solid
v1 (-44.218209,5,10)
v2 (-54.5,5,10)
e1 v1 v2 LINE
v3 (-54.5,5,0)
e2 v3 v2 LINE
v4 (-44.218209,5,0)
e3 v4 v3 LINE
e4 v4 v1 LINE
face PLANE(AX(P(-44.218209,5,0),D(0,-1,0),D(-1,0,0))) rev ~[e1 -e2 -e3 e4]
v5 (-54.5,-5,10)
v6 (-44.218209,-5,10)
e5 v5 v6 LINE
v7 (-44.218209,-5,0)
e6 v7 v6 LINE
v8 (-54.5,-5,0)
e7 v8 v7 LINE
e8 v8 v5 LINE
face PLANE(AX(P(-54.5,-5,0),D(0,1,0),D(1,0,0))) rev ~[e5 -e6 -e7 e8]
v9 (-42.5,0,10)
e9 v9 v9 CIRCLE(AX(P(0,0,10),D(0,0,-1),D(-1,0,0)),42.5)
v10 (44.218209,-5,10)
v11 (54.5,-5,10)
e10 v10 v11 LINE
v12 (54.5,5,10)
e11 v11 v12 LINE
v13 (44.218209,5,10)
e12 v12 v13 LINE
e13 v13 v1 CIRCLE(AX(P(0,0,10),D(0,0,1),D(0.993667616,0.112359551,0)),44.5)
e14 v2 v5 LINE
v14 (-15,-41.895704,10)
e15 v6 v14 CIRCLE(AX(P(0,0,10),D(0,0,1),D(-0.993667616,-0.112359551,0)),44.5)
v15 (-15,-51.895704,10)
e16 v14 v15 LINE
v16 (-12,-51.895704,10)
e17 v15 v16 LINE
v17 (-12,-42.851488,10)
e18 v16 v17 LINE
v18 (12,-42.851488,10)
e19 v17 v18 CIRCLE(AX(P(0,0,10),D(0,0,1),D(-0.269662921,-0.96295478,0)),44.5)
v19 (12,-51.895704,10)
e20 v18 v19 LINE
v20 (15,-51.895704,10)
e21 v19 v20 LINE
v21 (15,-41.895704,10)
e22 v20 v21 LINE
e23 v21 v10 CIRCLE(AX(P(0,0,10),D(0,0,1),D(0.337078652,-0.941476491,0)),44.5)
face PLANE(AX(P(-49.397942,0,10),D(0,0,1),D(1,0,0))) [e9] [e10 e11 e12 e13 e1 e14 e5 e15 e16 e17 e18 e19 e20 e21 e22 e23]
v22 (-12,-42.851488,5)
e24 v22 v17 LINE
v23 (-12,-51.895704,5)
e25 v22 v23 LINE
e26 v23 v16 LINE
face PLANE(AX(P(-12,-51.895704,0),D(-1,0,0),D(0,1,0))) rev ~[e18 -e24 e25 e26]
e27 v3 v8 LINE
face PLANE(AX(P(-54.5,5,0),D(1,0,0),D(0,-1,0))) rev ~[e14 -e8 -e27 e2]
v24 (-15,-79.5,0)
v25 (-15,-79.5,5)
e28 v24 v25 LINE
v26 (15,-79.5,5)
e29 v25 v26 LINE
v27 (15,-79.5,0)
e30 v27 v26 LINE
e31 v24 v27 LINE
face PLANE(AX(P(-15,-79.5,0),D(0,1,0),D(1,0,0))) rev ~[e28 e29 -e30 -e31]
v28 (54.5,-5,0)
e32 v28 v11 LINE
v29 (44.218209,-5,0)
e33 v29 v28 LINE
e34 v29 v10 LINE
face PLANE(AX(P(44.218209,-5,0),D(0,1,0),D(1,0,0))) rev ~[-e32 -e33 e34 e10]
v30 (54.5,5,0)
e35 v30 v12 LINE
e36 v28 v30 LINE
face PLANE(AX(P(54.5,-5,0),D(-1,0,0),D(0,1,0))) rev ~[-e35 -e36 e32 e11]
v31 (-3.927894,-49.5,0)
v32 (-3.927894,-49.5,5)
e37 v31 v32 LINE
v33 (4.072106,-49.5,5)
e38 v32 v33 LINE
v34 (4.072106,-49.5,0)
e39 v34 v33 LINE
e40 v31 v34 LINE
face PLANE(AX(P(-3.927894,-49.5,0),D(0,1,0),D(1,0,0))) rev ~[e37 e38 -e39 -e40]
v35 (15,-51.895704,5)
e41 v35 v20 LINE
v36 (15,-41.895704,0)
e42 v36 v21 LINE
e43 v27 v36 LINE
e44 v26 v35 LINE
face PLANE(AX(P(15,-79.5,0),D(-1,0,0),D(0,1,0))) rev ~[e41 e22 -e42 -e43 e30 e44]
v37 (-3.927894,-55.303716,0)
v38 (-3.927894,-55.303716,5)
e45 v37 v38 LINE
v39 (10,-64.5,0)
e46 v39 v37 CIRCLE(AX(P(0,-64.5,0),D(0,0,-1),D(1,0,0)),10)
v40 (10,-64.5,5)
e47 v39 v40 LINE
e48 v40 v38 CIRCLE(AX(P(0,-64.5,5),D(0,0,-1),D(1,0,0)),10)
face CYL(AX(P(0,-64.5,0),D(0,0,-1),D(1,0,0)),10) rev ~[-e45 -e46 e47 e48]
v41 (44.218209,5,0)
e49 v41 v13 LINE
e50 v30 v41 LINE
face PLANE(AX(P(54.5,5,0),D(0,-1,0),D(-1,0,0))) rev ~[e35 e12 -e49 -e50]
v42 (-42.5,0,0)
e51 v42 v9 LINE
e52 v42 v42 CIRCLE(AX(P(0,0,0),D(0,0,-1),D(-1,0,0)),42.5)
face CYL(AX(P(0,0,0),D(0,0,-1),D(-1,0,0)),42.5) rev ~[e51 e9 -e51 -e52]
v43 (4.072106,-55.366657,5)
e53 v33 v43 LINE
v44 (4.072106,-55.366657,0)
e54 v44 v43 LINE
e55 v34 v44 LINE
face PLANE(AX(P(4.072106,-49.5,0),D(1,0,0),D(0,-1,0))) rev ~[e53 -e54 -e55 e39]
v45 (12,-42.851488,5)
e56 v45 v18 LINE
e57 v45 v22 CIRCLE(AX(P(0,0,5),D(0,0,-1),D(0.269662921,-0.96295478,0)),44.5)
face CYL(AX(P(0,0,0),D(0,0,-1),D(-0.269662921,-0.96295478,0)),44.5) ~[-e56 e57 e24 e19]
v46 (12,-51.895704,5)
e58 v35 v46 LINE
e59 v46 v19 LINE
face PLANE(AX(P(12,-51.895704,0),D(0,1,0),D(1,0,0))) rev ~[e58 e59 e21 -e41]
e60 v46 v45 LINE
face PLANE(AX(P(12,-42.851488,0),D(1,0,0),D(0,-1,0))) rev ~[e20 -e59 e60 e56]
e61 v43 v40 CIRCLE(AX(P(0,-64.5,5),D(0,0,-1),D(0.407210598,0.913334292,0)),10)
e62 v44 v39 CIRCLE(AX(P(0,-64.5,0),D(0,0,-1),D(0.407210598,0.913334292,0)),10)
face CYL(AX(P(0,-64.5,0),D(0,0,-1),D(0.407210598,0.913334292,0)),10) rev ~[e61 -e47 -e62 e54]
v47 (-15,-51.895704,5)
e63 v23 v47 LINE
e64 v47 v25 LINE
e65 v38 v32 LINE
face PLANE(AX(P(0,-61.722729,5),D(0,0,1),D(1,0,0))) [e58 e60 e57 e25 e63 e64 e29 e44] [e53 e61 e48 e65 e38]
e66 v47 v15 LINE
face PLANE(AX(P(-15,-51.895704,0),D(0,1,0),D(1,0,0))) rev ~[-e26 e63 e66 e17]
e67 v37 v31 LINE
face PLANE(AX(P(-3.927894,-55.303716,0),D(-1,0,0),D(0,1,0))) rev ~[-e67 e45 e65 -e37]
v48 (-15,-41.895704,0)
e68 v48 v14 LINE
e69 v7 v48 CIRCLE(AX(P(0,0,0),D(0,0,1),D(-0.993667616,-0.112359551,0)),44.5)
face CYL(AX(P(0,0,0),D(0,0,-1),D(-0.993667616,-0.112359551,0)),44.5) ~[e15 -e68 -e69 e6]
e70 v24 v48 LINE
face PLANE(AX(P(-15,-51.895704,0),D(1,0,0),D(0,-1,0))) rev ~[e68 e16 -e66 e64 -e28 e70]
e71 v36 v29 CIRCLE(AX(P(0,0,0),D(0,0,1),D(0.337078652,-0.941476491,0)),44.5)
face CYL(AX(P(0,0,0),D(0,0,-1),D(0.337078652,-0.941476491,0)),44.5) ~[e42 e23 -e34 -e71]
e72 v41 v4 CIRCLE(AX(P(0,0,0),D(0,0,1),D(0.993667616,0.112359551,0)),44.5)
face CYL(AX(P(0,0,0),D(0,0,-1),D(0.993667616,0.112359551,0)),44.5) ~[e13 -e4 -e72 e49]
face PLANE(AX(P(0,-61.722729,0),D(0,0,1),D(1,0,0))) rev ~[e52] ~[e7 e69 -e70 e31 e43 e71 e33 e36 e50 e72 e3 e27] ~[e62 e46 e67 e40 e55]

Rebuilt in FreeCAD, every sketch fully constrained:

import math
import FreeCAD as App
import Part
import Sketcher
Q = App.Units.Quantity

doc = App.newDocument("Part")
params = doc.addObject("Spreadsheet::Sheet", "Params")
for row, (alias, value) in enumerate([
    ("sketch1_diameter", "85 mm"),
    ("sketch1_radius", "44.5 mm"),
    ("sketch1_width", "3 mm"),
    ("sketch1_height", "10 mm"),
    ("pad1_length", "10 mm"),
    ("sketch2_radius", "10 mm"),
    ("sketch2_radius2", "44.5 mm"),
    ("sketch2_width", "3 mm"),
    ("sketch2_width2", "30 mm"),
    ("sketch2_width3", "8 mm"),
    ("pad2_length", "5 mm"),
], start=1):
    params.set(f"A{row}", alias)
    params.set(f"B{row}", "=" + value)
    params.setAlias(f"B{row}", alias)

body = doc.addObject("PartDesign::Body", "Body")

# Sketch on XY plane
sketch1 = doc.addObject("Sketcher::SketchObject", "Sketch")
body.addObject(sketch1)
sketch1.AttachmentSupport = (doc.XY_Plane, [""])
sketch1.MapMode = "FlatFace"
sketch1.addGeometry(Part.LineSegment(App.Vector(-44.218209, 5, 0), App.Vector(-54.5, 5, 0)), False)
sketch1.addGeometry(Part.LineSegment(App.Vector(-54.5, 5, 0), App.Vector(-54.5, -5, 0)), False)
sketch1.addGeometry(Part.LineSegment(App.Vector(-54.5, -5, 0), App.Vector(-44.218209, -5, 0)), False)
sketch1.addGeometry(Part.ArcOfCircle(Part.Circle(App.Vector(0, 0, 0), App.Vector(0, 0, 1), 44.5), math.radians(-173.548649), math.radians(-109.698989)), False)
sketch1.addGeometry(Part.LineSegment(App.Vector(-15, -41.895704, 0), App.Vector(-15, -51.895704, 0)), False)
sketch1.addGeometry(Part.LineSegment(App.Vector(-15, -51.895704, 0), App.Vector(-12, -51.895704, 0)), False)
sketch1.addGeometry(Part.LineSegment(App.Vector(-12, -51.895704, 0), App.Vector(-12, -42.851488, 0)), False)
sketch1.addGeometry(Part.ArcOfCircle(Part.Circle(App.Vector(0, 0, 0), App.Vector(0, 0, 1), 44.5), math.radians(-105.64421), math.radians(-74.35579)), False)
sketch1.addGeometry(Part.LineSegment(App.Vector(12, -42.851488, 0), App.Vector(12, -51.895704, 0)), False)
sketch1.addGeometry(Part.LineSegment(App.Vector(12, -51.895704, 0), App.Vector(15, -51.895704, 0)), False)
sketch1.addGeometry(Part.LineSegment(App.Vector(15, -51.895704, 0), App.Vector(15, -41.895704, 0)), False)
sketch1.addGeometry(Part.ArcOfCircle(Part.Circle(App.Vector(0, 0, 0), App.Vector(0, 0, 1), 44.5), math.radians(-70.301011), math.radians(-6.451351)), False)
sketch1.addGeometry(Part.LineSegment(App.Vector(44.218209, -5, 0), App.Vector(54.5, -5, 0)), False)
sketch1.addGeometry(Part.LineSegment(App.Vector(54.5, -5, 0), App.Vector(54.5, 5, 0)), False)
sketch1.addGeometry(Part.LineSegment(App.Vector(54.5, 5, 0), App.Vector(44.218209, 5, 0)), False)
sketch1.addGeometry(Part.ArcOfCircle(Part.Circle(App.Vector(0, 0, 0), App.Vector(0, 0, 1), 44.5), math.radians(6.451351), math.radians(173.548649)), False)
sketch1.addGeometry(Part.Circle(App.Vector(0, 0, 0), App.Vector(0, 0, 1), 42.5), False)
sketch1.addConstraint(Sketcher.Constraint("Coincident", 0, 2, 1, 1))
sketch1.addConstraint(Sketcher.Constraint("Coincident", 1, 2, 2, 1))
sketch1.addConstraint(Sketcher.Constraint("Coincident", 2, 2, 3, 1))
sketch1.addConstraint(Sketcher.Constraint("Coincident", 3, 2, 4, 1))
sketch1.addConstraint(Sketcher.Constraint("Coincident", 4, 2, 5, 1))
sketch1.addConstraint(Sketcher.Constraint("Coincident", 5, 2, 6, 1))
sketch1.addConstraint(Sketcher.Constraint("Coincident", 6, 2, 7, 1))
sketch1.addConstraint(Sketcher.Constraint("Coincident", 7, 2, 8, 1))
sketch1.addConstraint(Sketcher.Constraint("Coincident", 8, 2, 9, 1))
sketch1.addConstraint(Sketcher.Constraint("Coincident", 9, 2, 10, 1))
sketch1.addConstraint(Sketcher.Constraint("Coincident", 10, 2, 11, 1))
sketch1.addConstraint(Sketcher.Constraint("Coincident", 11, 2, 12, 1))
sketch1.addConstraint(Sketcher.Constraint("Coincident", 12, 2, 13, 1))
sketch1.addConstraint(Sketcher.Constraint("Coincident", 13, 2, 14, 1))
sketch1.addConstraint(Sketcher.Constraint("Coincident", 14, 2, 15, 1))
sketch1.addConstraint(Sketcher.Constraint("Coincident", 15, 2, 0, 1))
sketch1.addConstraint(Sketcher.Constraint("Horizontal", 0))
sketch1.addConstraint(Sketcher.Constraint("Vertical", 1))
sketch1.addConstraint(Sketcher.Constraint("Horizontal", 2))
sketch1.addConstraint(Sketcher.Constraint("Vertical", 4))
sketch1.addConstraint(Sketcher.Constraint("Horizontal", 5))
sketch1.addConstraint(Sketcher.Constraint("Vertical", 6))
sketch1.addConstraint(Sketcher.Constraint("Vertical", 8))
sketch1.addConstraint(Sketcher.Constraint("Horizontal", 9))
sketch1.addConstraint(Sketcher.Constraint("Vertical", 10))
sketch1.addConstraint(Sketcher.Constraint("Horizontal", 12))
sketch1.addConstraint(Sketcher.Constraint("Vertical", 13))
sketch1.addConstraint(Sketcher.Constraint("Horizontal", 14))
sketch1.addConstraint(Sketcher.Constraint("Coincident", 3, 3, -1, 1))
sketch1.addConstraint(Sketcher.Constraint("Coincident", 7, 3, -1, 1))
sketch1.addConstraint(Sketcher.Constraint("Coincident", 11, 3, -1, 1))
sketch1.addConstraint(Sketcher.Constraint("Coincident", 15, 3, -1, 1))
sketch1.addConstraint(Sketcher.Constraint("Coincident", 16, 3, -1, 1))
sketch1.addConstraint(Sketcher.Constraint("Equal", 3, 7))
sketch1.addConstraint(Sketcher.Constraint("Equal", 7, 11))
sketch1.addConstraint(Sketcher.Constraint("Equal", 11, 15))
sketch1.addConstraint(Sketcher.Constraint("Symmetric", 0, 2, 12, 2, -1, 1))
sketch1.addConstraint(Sketcher.Constraint("Symmetric", 5, 2, 8, 2, -2))
sketch1.addConstraint(Sketcher.Constraint("Horizontal", 3, 2, 10, 2))
sketch1.addConstraint(Sketcher.Constraint("Horizontal", 2, 2, 11, 2))
sketch1.addConstraint(Sketcher.Constraint("Horizontal", 0, 2, 13, 2))
sketch1.addConstraint(Sketcher.Constraint("Equal", 1, 4))
sketch1.addConstraint(Sketcher.Constraint("Diameter", 16, Q("85 mm")))
sketch1.addConstraint(Sketcher.Constraint("Radius", 3, Q("44.5 mm")))
sketch1.addConstraint(Sketcher.Constraint("DistanceX", 5, 1, 5, 2, Q("3 mm")))
sketch1.addConstraint(Sketcher.Constraint("DistanceY", 1, 2, 1, 1, Q("10 mm")))
sketch1.addConstraint(Sketcher.Constraint("DistanceX", 3, 2, -1, 1, Q("15 mm")))
sketch1.addConstraint(Sketcher.Constraint("DistanceX", 0, 2, -1, 1, Q("54.5 mm")))
sketch1.setExpression("Constraints[42]", "Params.sketch1_diameter")
sketch1.setExpression("Constraints[43]", "Params.sketch1_radius")
sketch1.setExpression("Constraints[44]", "Params.sketch1_width")
sketch1.setExpression("Constraints[45]", "Params.sketch1_height")
pad1 = doc.addObject("PartDesign::Pad", "Pad")
body.addObject(pad1)
pad1.Profile = sketch1
pad1.setExpression("Length", "Params.pad1_length")

# Sketch on XY plane
sketch2 = doc.addObject("Sketcher::SketchObject", "Sketch001")
body.addObject(sketch2)
sketch2.AttachmentSupport = (doc.XY_Plane, [""])
sketch2.MapMode = "FlatFace"
sketch2.addGeometry(Part.LineSegment(App.Vector(12, -51.895704, 0), App.Vector(12, -42.851488, 0)), False)
sketch2.addGeometry(Part.ArcOfCircle(Part.Circle(App.Vector(0, 0, 0), App.Vector(0, 0, 1), 44.5), math.radians(-105.64421), math.radians(-74.35579)), False)
sketch2.addGeometry(Part.LineSegment(App.Vector(-12, -42.851488, 0), App.Vector(-12, -51.895704, 0)), False)
sketch2.addGeometry(Part.LineSegment(App.Vector(-12, -51.895704, 0), App.Vector(-15, -51.895704, 0)), False)
sketch2.addGeometry(Part.LineSegment(App.Vector(-15, -51.895704, 0), App.Vector(-15, -79.5, 0)), False)
sketch2.addGeometry(Part.LineSegment(App.Vector(-15, -79.5, 0), App.Vector(15, -79.5, 0)), False)
sketch2.addGeometry(Part.LineSegment(App.Vector(15, -79.5, 0), App.Vector(15, -51.895704, 0)), False)
sketch2.addGeometry(Part.LineSegment(App.Vector(15, -51.895704, 0), App.Vector(12, -51.895704, 0)), False)
sketch2.addGeometry(Part.LineSegment(App.Vector(4.072106, -49.5, 0), App.Vector(4.072106, -55.366657, 0)), False)
sketch2.addGeometry(Part.ArcOfCircle(Part.Circle(App.Vector(0, -64.5, 0), App.Vector(0, 0, 1), 10), math.radians(0), math.radians(65.970271)), False)
sketch2.addGeometry(Part.ArcOfCircle(Part.Circle(App.Vector(0, -64.5, 0), App.Vector(0, 0, 1), 10), math.radians(113.128176), math.radians(360)), False)
sketch2.addGeometry(Part.LineSegment(App.Vector(-3.927894, -55.303716, 0), App.Vector(-3.927894, -49.5, 0)), False)
sketch2.addGeometry(Part.LineSegment(App.Vector(-3.927894, -49.5, 0), App.Vector(4.072106, -49.5, 0)), False)
sketch2.addConstraint(Sketcher.Constraint("Coincident", 0, 2, 1, 2))
sketch2.addConstraint(Sketcher.Constraint("Coincident", 1, 1, 2, 1))
sketch2.addConstraint(Sketcher.Constraint("Coincident", 2, 2, 3, 1))
sketch2.addConstraint(Sketcher.Constraint("Coincident", 3, 2, 4, 1))
sketch2.addConstraint(Sketcher.Constraint("Coincident", 4, 2, 5, 1))
sketch2.addConstraint(Sketcher.Constraint("Coincident", 5, 2, 6, 1))
sketch2.addConstraint(Sketcher.Constraint("Coincident", 6, 2, 7, 1))
sketch2.addConstraint(Sketcher.Constraint("Coincident", 7, 2, 0, 1))
sketch2.addConstraint(Sketcher.Constraint("Coincident", 8, 2, 9, 2))
sketch2.addConstraint(Sketcher.Constraint("Tangent", 9, 1, 10, 2))
sketch2.addConstraint(Sketcher.Constraint("Coincident", 10, 1, 11, 1))
sketch2.addConstraint(Sketcher.Constraint("Coincident", 11, 2, 12, 1))
sketch2.addConstraint(Sketcher.Constraint("Coincident", 12, 2, 8, 1))
sketch2.addConstraint(Sketcher.Constraint("Vertical", 0))
sketch2.addConstraint(Sketcher.Constraint("Vertical", 2))
sketch2.addConstraint(Sketcher.Constraint("Horizontal", 3))
sketch2.addConstraint(Sketcher.Constraint("Vertical", 4))
sketch2.addConstraint(Sketcher.Constraint("Horizontal", 5))
sketch2.addConstraint(Sketcher.Constraint("Vertical", 6))
sketch2.addConstraint(Sketcher.Constraint("Horizontal", 7))
sketch2.addConstraint(Sketcher.Constraint("Vertical", 8))
sketch2.addConstraint(Sketcher.Constraint("Vertical", 11))
sketch2.addConstraint(Sketcher.Constraint("Horizontal", 12))
sketch2.addConstraint(Sketcher.Constraint("Coincident", 1, 3, -1, 1))
sketch2.addConstraint(Sketcher.Constraint("Equal", 9, 10))
sketch2.addConstraint(Sketcher.Constraint("Symmetric", 3, 2, 6, 2, -2))
sketch2.addConstraint(Sketcher.Constraint("PointOnObject", 9, 3, -2))
sketch2.addConstraint(Sketcher.Constraint("Horizontal", 0, 2, 1, 1))
sketch2.addConstraint(Sketcher.Constraint("Horizontal", 10, 3, 9, 1))
sketch2.addConstraint(Sketcher.Constraint("Radius", 9, Q("10 mm")))
sketch2.addConstraint(Sketcher.Constraint("Radius", 1, Q("44.5 mm")))
sketch2.addConstraint(Sketcher.Constraint("DistanceX", 3, 2, 3, 1, Q("3 mm")))
sketch2.addConstraint(Sketcher.Constraint("DistanceX", 5, 1, 5, 2, Q("30 mm")))
sketch2.addConstraint(Sketcher.Constraint("DistanceX", 12, 1, 12, 2, Q("8 mm")))
sketch2.addConstraint(Sketcher.Constraint("DistanceY", 4, 2, 9, 3, Q("15 mm")))
sketch2.addConstraint(Sketcher.Constraint("DistanceY", 9, 3, -1, 1, Q("64.5 mm")))
sketch2.addConstraint(Sketcher.Constraint("DistanceY", 11, 2, -1, 1, Q("49.5 mm")))
sketch2.addConstraint(Sketcher.Constraint("DistanceY", 0, 1, 0, 2, Q("9.044216 mm")))
sketch2.addConstraint(Sketcher.Constraint("DistanceY", 8, 2, 8, 1, Q("5.866657 mm")))
sketch2.setExpression("Constraints[29]", "Params.sketch2_radius")
sketch2.setExpression("Constraints[30]", "Params.sketch2_radius2")
sketch2.setExpression("Constraints[31]", "Params.sketch2_width")
sketch2.setExpression("Constraints[32]", "Params.sketch2_width2")
sketch2.setExpression("Constraints[33]", "Params.sketch2_width3")
pad2 = doc.addObject("PartDesign::Pad", "Pad001")
body.addObject(pad2)
pad2.Profile = sketch2
pad2.setExpression("Length", "Params.pad2_length")

doc.recompute()
